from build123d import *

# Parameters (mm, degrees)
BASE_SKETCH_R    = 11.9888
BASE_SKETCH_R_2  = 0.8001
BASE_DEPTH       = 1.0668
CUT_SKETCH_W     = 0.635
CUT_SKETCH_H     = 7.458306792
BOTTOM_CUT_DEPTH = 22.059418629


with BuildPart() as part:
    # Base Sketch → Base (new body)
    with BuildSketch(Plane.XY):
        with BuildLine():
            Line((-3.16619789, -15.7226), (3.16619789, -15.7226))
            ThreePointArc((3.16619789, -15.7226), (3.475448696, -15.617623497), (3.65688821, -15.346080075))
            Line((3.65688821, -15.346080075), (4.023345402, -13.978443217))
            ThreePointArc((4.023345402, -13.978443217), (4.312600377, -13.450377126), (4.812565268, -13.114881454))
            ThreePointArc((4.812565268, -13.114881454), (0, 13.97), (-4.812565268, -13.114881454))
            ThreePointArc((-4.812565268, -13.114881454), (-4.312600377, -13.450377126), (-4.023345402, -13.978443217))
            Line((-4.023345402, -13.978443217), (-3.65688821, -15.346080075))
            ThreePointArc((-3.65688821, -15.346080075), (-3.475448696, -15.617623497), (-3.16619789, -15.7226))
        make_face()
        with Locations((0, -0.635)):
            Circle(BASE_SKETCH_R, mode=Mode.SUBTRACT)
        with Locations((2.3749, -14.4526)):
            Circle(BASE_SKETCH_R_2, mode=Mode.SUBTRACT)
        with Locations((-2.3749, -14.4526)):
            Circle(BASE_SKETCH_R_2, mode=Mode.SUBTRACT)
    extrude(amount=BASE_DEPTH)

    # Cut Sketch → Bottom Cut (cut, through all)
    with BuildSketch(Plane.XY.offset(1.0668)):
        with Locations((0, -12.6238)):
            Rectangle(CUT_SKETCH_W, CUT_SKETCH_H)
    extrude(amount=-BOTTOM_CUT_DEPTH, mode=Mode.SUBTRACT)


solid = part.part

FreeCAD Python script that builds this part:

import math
import FreeCAD as App
import Part
import Sketcher
from FreeCAD import Vector
Q = App.Units.Quantity


def add_polygon(sketch, points):
    """Adds a closed chain of lines whose ends are joined by coincident constraints."""
    first, n = sketch.GeometryCount, len(points)
    for a, b in zip(points, points[1:] + points[:1]):
        sketch.addGeometry(Part.LineSegment(App.Vector(*a, 0), App.Vector(*b, 0)), False)
    for i in range(n):
        sketch.addConstraint(Sketcher.Constraint("Coincident", first + i, 2, first + (i + 1) % n, 1))

doc = App.newDocument("Part")
body = doc.addObject("PartDesign::Body", "Body")

sketch1 = doc.addObject("Sketcher::SketchObject", "Sketch")
body.addObject(sketch1)
sketch1.AttachmentSupport = (doc.XY_Plane, [""])
sketch1.MapMode = "FlatFace"
sketch1.addGeometry(Part.LineSegment(Vector(-3.166198, -15.7226, 0), Vector(3.166198, -15.7226, 0)), False)
sketch1.addGeometry(Part.ArcOfCircle(Part.Circle(Vector(3.166198, -15.2146, 0), Vector(0, 0, 1), 0.508), math.radians(-90), math.radians(-15)), False)
sketch1.addGeometry(Part.LineSegment(Vector(3.656888, -15.34608, 0), Vector(4.023345, -13.978443, 0)), False)
sketch1.addGeometry(Part.ArcOfCircle(Part.Circle(Vector(5.250071, -14.307143, 0), Vector(0, 0, 1), 1.27), math.radians(110.150841), math.radians(165)), False)
sketch1.addGeometry(Part.ArcOfCircle(Part.Circle(Vector(0, 0, 0), Vector(0, 0, 1), 13.97), math.radians(-69.849159), math.radians(249.849159)), False)
sketch1.addGeometry(Part.ArcOfCircle(Part.Circle(Vector(-5.250071, -14.307143, 0), Vector(0, 0, 1), 1.27), math.radians(15), math.radians(69.849159)), False)
sketch1.addGeometry(Part.LineSegment(Vector(-4.023345, -13.978443, 0), Vector(-3.656888, -15.34608, 0)), False)
sketch1.addGeometry(Part.ArcOfCircle(Part.Circle(Vector(-3.166198, -15.2146, 0), Vector(0, 0, 1), 0.508), math.radians(-165), math.radians(-90)), False)
sketch1.addGeometry(Part.Circle(Vector(-2.3749, -14.4526, 0), Vector(0, 0, 1), 0.8001), False)
sketch1.addGeometry(Part.Circle(Vector(2.3749, -14.4526, 0), Vector(0, 0, 1), 0.8001), False)
sketch1.addGeometry(Part.Circle(Vector(0, -0.635, 0), Vector(0, 0, 1), 11.9888), False)
sketch1.addConstraint(Sketcher.Constraint("Tangent", 0, 2, 1, 1))
sketch1.addConstraint(Sketcher.Constraint("Tangent", 1, 2, 2, 1))
sketch1.addConstraint(Sketcher.Constraint("Tangent", 2, 2, 3, 2))
sketch1.addConstraint(Sketcher.Constraint("Tangent", 3, 1, 4, 1))
sketch1.addConstraint(Sketcher.Constraint("Tangent", 4, 2, 5, 2))
sketch1.addConstraint(Sketcher.Constraint("Tangent", 5, 1, 6, 1))
sketch1.addConstraint(Sketcher.Constraint("Tangent", 6, 2, 7, 1))
sketch1.addConstraint(Sketcher.Constraint("Tangent", 7, 2, 0, 1))
sketch1.addConstraint(Sketcher.Constraint("Horizontal", 0))
sketch1.addConstraint(Sketcher.Constraint("Coincident", 4, 3, -1, 1))
sketch1.addConstraint(Sketcher.Constraint("Equal", 3, 5))
sketch1.addConstraint(Sketcher.Constraint("Equal", 1, 7))
sketch1.addConstraint(Sketcher.Constraint("Equal", 8, 9))
sketch1.addConstraint(Sketcher.Constraint("Symmetric", 8, 3, 9, 3, -2))
sketch1.addConstraint(Sketcher.Constraint("Symmetric", 2, 2, 5, 1, -2))
sketch1.addConstraint(Sketcher.Constraint("PointOnObject", 10, 3, -2))
sketch1.addConstraint(Sketcher.Constraint("Radius", 1, Q("0.02 in")))
sketch1.addConstraint(Sketcher.Constraint("Radius", 3, Q("0.05 in")))
sketch1.addConstraint(Sketcher.Constraint("Radius", 4, Q("0.55 in")))
sketch1.addConstraint(Sketcher.Constraint("Diameter", 8, Q("0.063 in")))
sketch1.addConstraint(Sketcher.Constraint("Diameter", 10, Q("0.944 in")))
sketch1.addConstraint(Sketcher.Constraint("Angle", 2, Q("75 deg")))
sketch1.addConstraint(Sketcher.Constraint("DistanceY", 7, 3, 8, 3, Q("0.03 in")))
sketch1.addConstraint(Sketcher.Constraint("DistanceY", 1, 3, -1, 1, Q("0.599 in")))
sketch1.addConstraint(Sketcher.Constraint("DistanceY", 10, 3, -1, 1, Q("0.025 in")))
sketch1.addConstraint(Sketcher.Constraint("DistanceX", 8, 3, 9, 3, Q("0.187 in")))
sketch1.addConstraint(Sketcher.Constraint("DistanceY", 1, 2, 3, 1, 2.231199))
pad1 = doc.addObject("PartDesign::Pad", "Pad")
body.addObject(pad1)
pad1.Profile = sketch1
pad1.Length = Q("0.042 in")

sketch2 = doc.addObject("Sketcher::SketchObject", "Sketch001")
body.addObject(sketch2)
sketch2.AttachmentSupport = (doc.XY_Plane, [""])
sketch2.MapMode = "FlatFace"
sketch2.AttachmentOffset = App.Placement(Vector(0, 0, 0.042 * 25.4), App.Rotation())
add_polygon(sketch2, [(-0.3175, -8.894647), (-0.3175, -16.352953), (0.3175, -16.352953), (0.3175, -8.894647)])
sketch2.addConstraint(Sketcher.Constraint("Vertical", 0))
sketch2.addConstraint(Sketcher.Constraint("Horizontal", 1))
sketch2.addConstraint(Sketcher.Constraint("Vertical", 2))
sketch2.addConstraint(Sketcher.Constraint("Horizontal", 3))
sketch2.addConstraint(Sketcher.Constraint("DistanceX", 1, 1, 1, 2, Q("0.025 in")))
sketch2.addConstraint(Sketcher.Constraint("DistanceX", 0, 2, -1, 1, Q("0.0125 in")))
sketch2.addConstraint(Sketcher.Constraint("DistanceY", 0, 2, 0, 1, 7.458307))
sketch2.addConstraint(Sketcher.Constraint("DistanceY", 0, 2, -1, 1, 16.352953))
pocket1 = doc.addObject("PartDesign::Pocket", "Pocket")
body.addObject(pocket1)
pocket1.Profile = sketch2
pocket1.Type = "ThroughAll"

doc.recompute()
